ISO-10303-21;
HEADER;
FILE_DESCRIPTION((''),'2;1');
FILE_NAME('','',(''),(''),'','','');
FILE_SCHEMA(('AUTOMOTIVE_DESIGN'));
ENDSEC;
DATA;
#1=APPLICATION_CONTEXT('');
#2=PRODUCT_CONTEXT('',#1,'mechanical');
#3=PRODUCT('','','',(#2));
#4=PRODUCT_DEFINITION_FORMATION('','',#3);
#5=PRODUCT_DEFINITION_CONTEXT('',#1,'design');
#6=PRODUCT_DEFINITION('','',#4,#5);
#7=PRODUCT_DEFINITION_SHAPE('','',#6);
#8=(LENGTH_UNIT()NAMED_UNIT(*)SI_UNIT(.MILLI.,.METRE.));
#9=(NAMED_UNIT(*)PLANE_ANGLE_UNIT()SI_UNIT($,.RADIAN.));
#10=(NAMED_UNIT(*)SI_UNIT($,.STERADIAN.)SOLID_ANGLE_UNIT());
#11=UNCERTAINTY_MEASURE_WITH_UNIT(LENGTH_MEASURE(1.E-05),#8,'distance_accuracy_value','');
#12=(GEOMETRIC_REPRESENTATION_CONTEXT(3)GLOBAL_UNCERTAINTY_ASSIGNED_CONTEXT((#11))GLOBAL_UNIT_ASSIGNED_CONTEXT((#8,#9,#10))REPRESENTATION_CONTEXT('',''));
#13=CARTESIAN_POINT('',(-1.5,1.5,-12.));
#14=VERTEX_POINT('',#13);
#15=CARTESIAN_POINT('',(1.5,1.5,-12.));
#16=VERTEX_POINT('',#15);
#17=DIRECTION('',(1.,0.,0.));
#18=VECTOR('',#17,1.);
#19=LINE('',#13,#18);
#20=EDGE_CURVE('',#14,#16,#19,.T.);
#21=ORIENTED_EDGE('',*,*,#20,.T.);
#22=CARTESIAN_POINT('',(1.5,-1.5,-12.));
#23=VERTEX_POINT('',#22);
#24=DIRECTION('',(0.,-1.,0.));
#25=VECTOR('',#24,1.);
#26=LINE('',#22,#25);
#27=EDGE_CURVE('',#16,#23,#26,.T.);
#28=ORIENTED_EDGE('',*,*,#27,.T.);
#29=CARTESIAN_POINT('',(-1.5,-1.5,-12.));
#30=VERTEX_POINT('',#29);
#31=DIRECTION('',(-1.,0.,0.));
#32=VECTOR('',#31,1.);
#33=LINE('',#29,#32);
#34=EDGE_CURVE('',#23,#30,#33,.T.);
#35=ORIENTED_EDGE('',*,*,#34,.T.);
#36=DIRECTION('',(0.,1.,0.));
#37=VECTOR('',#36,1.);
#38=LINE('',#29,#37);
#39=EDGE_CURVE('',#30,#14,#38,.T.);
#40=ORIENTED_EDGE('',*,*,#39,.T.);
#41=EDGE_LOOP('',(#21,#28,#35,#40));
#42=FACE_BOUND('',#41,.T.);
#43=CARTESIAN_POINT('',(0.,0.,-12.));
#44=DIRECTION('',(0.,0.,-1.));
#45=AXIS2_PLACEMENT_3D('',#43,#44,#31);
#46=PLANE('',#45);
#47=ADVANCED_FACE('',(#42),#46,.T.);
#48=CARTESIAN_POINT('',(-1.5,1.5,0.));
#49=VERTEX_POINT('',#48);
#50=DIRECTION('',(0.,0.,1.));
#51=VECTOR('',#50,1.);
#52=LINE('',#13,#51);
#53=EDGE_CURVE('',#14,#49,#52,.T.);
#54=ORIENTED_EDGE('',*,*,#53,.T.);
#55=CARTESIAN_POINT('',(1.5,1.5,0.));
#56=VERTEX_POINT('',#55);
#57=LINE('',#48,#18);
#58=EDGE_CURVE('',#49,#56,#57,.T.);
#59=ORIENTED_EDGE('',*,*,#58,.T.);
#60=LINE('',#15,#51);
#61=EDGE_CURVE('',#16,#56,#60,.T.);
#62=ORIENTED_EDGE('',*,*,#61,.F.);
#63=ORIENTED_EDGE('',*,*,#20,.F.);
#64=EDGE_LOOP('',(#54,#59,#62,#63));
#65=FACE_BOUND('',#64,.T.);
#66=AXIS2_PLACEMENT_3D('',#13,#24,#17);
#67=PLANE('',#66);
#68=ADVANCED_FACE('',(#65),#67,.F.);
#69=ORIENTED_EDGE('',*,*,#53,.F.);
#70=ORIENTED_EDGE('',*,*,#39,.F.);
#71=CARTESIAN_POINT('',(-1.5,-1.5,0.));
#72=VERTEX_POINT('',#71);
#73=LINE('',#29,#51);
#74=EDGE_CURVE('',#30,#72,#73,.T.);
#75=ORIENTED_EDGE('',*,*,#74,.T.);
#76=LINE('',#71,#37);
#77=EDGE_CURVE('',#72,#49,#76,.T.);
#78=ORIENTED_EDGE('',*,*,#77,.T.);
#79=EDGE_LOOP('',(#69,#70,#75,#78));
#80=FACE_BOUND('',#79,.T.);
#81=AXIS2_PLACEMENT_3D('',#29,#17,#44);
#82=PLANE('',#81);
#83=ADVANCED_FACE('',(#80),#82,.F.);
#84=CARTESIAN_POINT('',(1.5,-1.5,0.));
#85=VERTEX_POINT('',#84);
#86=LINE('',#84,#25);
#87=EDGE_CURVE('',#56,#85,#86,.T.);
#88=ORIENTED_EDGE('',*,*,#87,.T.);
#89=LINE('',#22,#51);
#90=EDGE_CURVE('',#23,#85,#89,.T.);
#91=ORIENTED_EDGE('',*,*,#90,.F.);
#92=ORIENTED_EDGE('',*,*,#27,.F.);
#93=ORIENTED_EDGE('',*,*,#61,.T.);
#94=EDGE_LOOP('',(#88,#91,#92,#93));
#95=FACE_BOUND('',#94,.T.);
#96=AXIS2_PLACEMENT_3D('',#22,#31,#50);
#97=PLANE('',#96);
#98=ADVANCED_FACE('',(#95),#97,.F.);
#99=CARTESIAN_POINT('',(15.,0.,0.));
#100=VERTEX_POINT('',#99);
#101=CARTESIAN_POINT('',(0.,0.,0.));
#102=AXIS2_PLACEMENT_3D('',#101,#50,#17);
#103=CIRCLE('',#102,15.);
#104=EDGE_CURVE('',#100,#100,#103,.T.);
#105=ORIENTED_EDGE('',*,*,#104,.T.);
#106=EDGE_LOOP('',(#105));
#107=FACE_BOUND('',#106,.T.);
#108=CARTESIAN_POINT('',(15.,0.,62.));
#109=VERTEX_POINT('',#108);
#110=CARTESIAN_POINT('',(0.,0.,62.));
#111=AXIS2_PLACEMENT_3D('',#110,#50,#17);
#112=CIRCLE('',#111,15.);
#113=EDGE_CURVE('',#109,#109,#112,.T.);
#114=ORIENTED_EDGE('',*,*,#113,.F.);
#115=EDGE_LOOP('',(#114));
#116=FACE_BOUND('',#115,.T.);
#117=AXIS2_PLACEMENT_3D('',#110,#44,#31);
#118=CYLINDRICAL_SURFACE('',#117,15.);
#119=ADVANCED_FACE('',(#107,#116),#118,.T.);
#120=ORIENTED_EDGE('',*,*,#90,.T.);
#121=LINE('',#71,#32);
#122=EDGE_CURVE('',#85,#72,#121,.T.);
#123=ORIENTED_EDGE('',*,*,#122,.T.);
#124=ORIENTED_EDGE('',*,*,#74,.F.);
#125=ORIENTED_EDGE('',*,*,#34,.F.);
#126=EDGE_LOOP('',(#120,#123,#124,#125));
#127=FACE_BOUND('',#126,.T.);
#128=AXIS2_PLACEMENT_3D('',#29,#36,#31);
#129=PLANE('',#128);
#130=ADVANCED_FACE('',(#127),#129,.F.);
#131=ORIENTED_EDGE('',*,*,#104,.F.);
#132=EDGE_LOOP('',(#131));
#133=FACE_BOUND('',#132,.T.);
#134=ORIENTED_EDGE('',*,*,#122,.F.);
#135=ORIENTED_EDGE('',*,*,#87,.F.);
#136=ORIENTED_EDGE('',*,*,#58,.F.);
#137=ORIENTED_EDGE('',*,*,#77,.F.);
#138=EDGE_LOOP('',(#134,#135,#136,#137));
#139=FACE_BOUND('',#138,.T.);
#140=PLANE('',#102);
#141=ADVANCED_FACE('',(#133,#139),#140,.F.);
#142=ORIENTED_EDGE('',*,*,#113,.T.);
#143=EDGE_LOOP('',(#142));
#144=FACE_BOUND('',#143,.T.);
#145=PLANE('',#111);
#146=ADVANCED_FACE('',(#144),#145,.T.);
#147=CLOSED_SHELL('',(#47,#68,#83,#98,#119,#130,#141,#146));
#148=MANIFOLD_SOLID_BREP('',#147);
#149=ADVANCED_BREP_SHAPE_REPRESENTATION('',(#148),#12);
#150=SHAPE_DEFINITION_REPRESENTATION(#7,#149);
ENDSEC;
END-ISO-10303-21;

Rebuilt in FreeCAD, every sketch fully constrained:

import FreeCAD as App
import Part
import Sketcher

V = App.Vector
Q = App.Units.Quantity


def add_polygon(sketch, points):
    """Adds a closed chain of lines whose ends are joined by coincident constraints."""
    first, n = sketch.GeometryCount, len(points)
    for a, b in zip(points, points[1:] + points[:1]):
        sketch.addGeometry(Part.LineSegment(App.Vector(*a, 0), App.Vector(*b, 0)), False)
    for i in range(n):
        sketch.addConstraint(Sketcher.Constraint("Coincident", first + i, 2, first + (i + 1) % n, 1))

doc = App.newDocument("Part")
params = doc.addObject("Spreadsheet::Sheet", "Params")
for row, (alias, value) in enumerate([
    ("sketch1_diameter", "30 mm"),
    ("pad1_length", "62 mm"),
    ("sketch2_width", "3 mm"),
    ("pad2_length", "12 mm"),
], start=1):
    params.set(f"A{row}", alias)
    params.set(f"B{row}", "=" + value)
    params.setAlias(f"B{row}", alias)

body = doc.addObject("PartDesign::Body", "Body")

# Sketch on XY plane
sketch1 = body.newObject("Sketcher::SketchObject", "Sketch")
sketch1.AttachmentSupport = (doc.getObject("XY_Plane"), [""])
sketch1.MapMode = "FlatFace"
sketch1.addGeometry(Part.Circle(V(0, 0, 0), V(0, 0, 1), 15), False)
sketch1.addConstraint(Sketcher.Constraint("Coincident", 0, 3, -1, 1))
sketch1.addConstraint(Sketcher.Constraint("Diameter", 0, Q("30 mm")))
sketch1.setExpression("Constraints[1]", "Params.sketch1_diameter")
pad1 = body.newObject("PartDesign::Pad", "Pad")
pad1.Profile = sketch1
pad1.setExpression("Length", "Params.pad1_length")

# Sketch on XY plane
sketch2 = body.newObject("Sketcher::SketchObject", "Sketch001")
sketch2.AttachmentSupport = (doc.getObject("XY_Plane"), [""])
sketch2.MapMode = "FlatFace"
add_polygon(sketch2, [(1.5, 1.5), (1.5, -1.5), (-1.5, -1.5), (-1.5, 1.5)])  # lines 0-3
sketch2.addConstraint(Sketcher.Constraint("Vertical", 0))
sketch2.addConstraint(Sketcher.Constraint("Horizontal", 1))
sketch2.addConstraint(Sketcher.Constraint("Vertical", 2))
sketch2.addConstraint(Sketcher.Constraint("Horizontal", 3))
sketch2.addConstraint(Sketcher.Constraint("Symmetric", 0, 2, 2, 2, -1, 1))
sketch2.addConstraint(Sketcher.Constraint("Equal", 3, 0))
sketch2.addConstraint(Sketcher.Constraint("DistanceX", 1, 2, 1, 1, Q("3 mm")))
sketch2.setExpression("Constraints[10]", "Params.sketch2_width")
pad2 = body.newObject("PartDesign::Pad", "Pad001")
pad2.Profile = sketch2
pad2.setExpression("Length", "Params.pad2_length")
pad2.Reversed = True

doc.recompute()
